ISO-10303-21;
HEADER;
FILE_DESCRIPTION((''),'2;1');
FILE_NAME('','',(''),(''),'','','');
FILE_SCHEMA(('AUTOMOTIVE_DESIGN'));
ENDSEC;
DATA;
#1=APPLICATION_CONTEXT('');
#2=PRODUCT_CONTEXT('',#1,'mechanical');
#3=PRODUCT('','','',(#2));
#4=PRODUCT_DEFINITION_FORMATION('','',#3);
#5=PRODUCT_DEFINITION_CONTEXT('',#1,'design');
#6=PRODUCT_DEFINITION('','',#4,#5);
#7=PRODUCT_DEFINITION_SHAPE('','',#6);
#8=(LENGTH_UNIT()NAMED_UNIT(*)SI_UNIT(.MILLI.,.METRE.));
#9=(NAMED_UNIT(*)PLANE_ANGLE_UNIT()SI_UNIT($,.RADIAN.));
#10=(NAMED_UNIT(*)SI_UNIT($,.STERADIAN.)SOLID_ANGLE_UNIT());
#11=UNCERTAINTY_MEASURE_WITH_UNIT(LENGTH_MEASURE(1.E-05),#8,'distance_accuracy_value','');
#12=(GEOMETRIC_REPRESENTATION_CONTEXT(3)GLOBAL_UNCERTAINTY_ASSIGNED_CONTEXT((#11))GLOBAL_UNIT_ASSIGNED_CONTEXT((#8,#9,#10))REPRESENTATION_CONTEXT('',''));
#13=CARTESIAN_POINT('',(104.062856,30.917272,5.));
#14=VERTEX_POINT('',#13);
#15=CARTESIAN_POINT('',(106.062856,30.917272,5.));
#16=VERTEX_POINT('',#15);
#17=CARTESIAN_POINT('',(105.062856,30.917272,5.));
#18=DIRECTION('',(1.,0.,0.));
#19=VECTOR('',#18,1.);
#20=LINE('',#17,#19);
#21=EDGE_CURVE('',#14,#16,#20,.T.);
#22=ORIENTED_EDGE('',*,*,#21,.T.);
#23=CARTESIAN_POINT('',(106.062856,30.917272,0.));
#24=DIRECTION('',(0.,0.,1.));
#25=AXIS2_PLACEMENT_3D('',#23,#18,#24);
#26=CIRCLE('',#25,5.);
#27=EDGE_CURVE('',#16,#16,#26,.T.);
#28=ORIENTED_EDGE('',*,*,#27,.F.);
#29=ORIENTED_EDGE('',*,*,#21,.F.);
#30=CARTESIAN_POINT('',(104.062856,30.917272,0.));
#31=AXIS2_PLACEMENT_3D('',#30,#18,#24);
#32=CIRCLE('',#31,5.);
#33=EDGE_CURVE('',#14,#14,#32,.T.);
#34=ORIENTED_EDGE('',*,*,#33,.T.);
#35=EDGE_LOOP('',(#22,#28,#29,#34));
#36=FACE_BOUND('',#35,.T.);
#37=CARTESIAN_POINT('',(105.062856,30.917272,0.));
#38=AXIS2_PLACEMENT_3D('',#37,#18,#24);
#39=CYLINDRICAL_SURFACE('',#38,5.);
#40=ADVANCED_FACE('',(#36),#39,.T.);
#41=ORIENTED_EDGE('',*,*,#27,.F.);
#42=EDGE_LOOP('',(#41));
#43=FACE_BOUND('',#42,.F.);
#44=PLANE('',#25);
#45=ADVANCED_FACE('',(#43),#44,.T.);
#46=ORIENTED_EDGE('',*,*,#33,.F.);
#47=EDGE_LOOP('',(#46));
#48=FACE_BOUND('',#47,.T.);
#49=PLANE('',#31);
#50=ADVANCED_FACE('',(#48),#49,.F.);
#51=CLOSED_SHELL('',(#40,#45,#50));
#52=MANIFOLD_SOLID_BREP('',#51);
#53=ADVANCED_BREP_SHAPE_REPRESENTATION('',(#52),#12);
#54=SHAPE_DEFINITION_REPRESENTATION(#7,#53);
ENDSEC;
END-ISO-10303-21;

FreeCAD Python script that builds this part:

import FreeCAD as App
import Part
import Sketcher
Q = App.Units.Quantity


def add_polygon(sketch, points):
    """Adds a closed chain of lines whose ends are joined by coincident constraints."""
    first, n = sketch.GeometryCount, len(points)
    for a, b in zip(points, points[1:] + points[:1]):
        sketch.addGeometry(Part.LineSegment(App.Vector(*a, 0), App.Vector(*b, 0)), False)
    for i in range(n):
        sketch.addConstraint(Sketcher.Constraint("Coincident", first + i, 2, first + (i + 1) % n, 1))

doc = App.newDocument("Part")
body = doc.addObject("PartDesign::Body", "Body")

sketch1 = body.newObject("Sketcher::SketchObject", "Sketch")
sketch1.AttachmentSupport = (doc.getObject("XY_Plane"), [""])
sketch1.MapMode = "FlatFace"
add_polygon(sketch1, [(104.1, 35.9), (104.1, 30.9), (106.1, 30.9), (106.1, 35.9)])
sketch1.addGeometry(Part.LineSegment(App.Vector(104.1, 30.9, 0), App.Vector(106.1, 30.9, 0)), True)
sketch1.addConstraint([
    Sketcher.Constraint("Vertical", 0),
    Sketcher.Constraint("Horizontal", 1),
    Sketcher.Constraint("Vertical", 2),
    Sketcher.Constraint("Horizontal", 3),
    Sketcher.Constraint("Horizontal", 4),
    Sketcher.Constraint("Coincident", 4, 1, 0, 2),
    Sketcher.Constraint("Vertical", 2, 2, 4, 2),
    Sketcher.Constraint("DistanceX", 1, 1, 1, 2, Q("2 mm")),
    Sketcher.Constraint("DistanceY", 0, 2, 0, 1, Q("5 mm")),
    Sketcher.Constraint("DistanceY", -1, 1, 0, 2, Q("30.917272 mm")),
    Sketcher.Constraint("DistanceX", -1, 1, 0, 2, Q("104.062856 mm")),
])
revolution = body.newObject("PartDesign::Revolution", "Revolution")
revolution.Profile = sketch1
revolution.ReferenceAxis = (sketch1, ["Axis0"])
revolution.Angle = 360

doc.recompute()
